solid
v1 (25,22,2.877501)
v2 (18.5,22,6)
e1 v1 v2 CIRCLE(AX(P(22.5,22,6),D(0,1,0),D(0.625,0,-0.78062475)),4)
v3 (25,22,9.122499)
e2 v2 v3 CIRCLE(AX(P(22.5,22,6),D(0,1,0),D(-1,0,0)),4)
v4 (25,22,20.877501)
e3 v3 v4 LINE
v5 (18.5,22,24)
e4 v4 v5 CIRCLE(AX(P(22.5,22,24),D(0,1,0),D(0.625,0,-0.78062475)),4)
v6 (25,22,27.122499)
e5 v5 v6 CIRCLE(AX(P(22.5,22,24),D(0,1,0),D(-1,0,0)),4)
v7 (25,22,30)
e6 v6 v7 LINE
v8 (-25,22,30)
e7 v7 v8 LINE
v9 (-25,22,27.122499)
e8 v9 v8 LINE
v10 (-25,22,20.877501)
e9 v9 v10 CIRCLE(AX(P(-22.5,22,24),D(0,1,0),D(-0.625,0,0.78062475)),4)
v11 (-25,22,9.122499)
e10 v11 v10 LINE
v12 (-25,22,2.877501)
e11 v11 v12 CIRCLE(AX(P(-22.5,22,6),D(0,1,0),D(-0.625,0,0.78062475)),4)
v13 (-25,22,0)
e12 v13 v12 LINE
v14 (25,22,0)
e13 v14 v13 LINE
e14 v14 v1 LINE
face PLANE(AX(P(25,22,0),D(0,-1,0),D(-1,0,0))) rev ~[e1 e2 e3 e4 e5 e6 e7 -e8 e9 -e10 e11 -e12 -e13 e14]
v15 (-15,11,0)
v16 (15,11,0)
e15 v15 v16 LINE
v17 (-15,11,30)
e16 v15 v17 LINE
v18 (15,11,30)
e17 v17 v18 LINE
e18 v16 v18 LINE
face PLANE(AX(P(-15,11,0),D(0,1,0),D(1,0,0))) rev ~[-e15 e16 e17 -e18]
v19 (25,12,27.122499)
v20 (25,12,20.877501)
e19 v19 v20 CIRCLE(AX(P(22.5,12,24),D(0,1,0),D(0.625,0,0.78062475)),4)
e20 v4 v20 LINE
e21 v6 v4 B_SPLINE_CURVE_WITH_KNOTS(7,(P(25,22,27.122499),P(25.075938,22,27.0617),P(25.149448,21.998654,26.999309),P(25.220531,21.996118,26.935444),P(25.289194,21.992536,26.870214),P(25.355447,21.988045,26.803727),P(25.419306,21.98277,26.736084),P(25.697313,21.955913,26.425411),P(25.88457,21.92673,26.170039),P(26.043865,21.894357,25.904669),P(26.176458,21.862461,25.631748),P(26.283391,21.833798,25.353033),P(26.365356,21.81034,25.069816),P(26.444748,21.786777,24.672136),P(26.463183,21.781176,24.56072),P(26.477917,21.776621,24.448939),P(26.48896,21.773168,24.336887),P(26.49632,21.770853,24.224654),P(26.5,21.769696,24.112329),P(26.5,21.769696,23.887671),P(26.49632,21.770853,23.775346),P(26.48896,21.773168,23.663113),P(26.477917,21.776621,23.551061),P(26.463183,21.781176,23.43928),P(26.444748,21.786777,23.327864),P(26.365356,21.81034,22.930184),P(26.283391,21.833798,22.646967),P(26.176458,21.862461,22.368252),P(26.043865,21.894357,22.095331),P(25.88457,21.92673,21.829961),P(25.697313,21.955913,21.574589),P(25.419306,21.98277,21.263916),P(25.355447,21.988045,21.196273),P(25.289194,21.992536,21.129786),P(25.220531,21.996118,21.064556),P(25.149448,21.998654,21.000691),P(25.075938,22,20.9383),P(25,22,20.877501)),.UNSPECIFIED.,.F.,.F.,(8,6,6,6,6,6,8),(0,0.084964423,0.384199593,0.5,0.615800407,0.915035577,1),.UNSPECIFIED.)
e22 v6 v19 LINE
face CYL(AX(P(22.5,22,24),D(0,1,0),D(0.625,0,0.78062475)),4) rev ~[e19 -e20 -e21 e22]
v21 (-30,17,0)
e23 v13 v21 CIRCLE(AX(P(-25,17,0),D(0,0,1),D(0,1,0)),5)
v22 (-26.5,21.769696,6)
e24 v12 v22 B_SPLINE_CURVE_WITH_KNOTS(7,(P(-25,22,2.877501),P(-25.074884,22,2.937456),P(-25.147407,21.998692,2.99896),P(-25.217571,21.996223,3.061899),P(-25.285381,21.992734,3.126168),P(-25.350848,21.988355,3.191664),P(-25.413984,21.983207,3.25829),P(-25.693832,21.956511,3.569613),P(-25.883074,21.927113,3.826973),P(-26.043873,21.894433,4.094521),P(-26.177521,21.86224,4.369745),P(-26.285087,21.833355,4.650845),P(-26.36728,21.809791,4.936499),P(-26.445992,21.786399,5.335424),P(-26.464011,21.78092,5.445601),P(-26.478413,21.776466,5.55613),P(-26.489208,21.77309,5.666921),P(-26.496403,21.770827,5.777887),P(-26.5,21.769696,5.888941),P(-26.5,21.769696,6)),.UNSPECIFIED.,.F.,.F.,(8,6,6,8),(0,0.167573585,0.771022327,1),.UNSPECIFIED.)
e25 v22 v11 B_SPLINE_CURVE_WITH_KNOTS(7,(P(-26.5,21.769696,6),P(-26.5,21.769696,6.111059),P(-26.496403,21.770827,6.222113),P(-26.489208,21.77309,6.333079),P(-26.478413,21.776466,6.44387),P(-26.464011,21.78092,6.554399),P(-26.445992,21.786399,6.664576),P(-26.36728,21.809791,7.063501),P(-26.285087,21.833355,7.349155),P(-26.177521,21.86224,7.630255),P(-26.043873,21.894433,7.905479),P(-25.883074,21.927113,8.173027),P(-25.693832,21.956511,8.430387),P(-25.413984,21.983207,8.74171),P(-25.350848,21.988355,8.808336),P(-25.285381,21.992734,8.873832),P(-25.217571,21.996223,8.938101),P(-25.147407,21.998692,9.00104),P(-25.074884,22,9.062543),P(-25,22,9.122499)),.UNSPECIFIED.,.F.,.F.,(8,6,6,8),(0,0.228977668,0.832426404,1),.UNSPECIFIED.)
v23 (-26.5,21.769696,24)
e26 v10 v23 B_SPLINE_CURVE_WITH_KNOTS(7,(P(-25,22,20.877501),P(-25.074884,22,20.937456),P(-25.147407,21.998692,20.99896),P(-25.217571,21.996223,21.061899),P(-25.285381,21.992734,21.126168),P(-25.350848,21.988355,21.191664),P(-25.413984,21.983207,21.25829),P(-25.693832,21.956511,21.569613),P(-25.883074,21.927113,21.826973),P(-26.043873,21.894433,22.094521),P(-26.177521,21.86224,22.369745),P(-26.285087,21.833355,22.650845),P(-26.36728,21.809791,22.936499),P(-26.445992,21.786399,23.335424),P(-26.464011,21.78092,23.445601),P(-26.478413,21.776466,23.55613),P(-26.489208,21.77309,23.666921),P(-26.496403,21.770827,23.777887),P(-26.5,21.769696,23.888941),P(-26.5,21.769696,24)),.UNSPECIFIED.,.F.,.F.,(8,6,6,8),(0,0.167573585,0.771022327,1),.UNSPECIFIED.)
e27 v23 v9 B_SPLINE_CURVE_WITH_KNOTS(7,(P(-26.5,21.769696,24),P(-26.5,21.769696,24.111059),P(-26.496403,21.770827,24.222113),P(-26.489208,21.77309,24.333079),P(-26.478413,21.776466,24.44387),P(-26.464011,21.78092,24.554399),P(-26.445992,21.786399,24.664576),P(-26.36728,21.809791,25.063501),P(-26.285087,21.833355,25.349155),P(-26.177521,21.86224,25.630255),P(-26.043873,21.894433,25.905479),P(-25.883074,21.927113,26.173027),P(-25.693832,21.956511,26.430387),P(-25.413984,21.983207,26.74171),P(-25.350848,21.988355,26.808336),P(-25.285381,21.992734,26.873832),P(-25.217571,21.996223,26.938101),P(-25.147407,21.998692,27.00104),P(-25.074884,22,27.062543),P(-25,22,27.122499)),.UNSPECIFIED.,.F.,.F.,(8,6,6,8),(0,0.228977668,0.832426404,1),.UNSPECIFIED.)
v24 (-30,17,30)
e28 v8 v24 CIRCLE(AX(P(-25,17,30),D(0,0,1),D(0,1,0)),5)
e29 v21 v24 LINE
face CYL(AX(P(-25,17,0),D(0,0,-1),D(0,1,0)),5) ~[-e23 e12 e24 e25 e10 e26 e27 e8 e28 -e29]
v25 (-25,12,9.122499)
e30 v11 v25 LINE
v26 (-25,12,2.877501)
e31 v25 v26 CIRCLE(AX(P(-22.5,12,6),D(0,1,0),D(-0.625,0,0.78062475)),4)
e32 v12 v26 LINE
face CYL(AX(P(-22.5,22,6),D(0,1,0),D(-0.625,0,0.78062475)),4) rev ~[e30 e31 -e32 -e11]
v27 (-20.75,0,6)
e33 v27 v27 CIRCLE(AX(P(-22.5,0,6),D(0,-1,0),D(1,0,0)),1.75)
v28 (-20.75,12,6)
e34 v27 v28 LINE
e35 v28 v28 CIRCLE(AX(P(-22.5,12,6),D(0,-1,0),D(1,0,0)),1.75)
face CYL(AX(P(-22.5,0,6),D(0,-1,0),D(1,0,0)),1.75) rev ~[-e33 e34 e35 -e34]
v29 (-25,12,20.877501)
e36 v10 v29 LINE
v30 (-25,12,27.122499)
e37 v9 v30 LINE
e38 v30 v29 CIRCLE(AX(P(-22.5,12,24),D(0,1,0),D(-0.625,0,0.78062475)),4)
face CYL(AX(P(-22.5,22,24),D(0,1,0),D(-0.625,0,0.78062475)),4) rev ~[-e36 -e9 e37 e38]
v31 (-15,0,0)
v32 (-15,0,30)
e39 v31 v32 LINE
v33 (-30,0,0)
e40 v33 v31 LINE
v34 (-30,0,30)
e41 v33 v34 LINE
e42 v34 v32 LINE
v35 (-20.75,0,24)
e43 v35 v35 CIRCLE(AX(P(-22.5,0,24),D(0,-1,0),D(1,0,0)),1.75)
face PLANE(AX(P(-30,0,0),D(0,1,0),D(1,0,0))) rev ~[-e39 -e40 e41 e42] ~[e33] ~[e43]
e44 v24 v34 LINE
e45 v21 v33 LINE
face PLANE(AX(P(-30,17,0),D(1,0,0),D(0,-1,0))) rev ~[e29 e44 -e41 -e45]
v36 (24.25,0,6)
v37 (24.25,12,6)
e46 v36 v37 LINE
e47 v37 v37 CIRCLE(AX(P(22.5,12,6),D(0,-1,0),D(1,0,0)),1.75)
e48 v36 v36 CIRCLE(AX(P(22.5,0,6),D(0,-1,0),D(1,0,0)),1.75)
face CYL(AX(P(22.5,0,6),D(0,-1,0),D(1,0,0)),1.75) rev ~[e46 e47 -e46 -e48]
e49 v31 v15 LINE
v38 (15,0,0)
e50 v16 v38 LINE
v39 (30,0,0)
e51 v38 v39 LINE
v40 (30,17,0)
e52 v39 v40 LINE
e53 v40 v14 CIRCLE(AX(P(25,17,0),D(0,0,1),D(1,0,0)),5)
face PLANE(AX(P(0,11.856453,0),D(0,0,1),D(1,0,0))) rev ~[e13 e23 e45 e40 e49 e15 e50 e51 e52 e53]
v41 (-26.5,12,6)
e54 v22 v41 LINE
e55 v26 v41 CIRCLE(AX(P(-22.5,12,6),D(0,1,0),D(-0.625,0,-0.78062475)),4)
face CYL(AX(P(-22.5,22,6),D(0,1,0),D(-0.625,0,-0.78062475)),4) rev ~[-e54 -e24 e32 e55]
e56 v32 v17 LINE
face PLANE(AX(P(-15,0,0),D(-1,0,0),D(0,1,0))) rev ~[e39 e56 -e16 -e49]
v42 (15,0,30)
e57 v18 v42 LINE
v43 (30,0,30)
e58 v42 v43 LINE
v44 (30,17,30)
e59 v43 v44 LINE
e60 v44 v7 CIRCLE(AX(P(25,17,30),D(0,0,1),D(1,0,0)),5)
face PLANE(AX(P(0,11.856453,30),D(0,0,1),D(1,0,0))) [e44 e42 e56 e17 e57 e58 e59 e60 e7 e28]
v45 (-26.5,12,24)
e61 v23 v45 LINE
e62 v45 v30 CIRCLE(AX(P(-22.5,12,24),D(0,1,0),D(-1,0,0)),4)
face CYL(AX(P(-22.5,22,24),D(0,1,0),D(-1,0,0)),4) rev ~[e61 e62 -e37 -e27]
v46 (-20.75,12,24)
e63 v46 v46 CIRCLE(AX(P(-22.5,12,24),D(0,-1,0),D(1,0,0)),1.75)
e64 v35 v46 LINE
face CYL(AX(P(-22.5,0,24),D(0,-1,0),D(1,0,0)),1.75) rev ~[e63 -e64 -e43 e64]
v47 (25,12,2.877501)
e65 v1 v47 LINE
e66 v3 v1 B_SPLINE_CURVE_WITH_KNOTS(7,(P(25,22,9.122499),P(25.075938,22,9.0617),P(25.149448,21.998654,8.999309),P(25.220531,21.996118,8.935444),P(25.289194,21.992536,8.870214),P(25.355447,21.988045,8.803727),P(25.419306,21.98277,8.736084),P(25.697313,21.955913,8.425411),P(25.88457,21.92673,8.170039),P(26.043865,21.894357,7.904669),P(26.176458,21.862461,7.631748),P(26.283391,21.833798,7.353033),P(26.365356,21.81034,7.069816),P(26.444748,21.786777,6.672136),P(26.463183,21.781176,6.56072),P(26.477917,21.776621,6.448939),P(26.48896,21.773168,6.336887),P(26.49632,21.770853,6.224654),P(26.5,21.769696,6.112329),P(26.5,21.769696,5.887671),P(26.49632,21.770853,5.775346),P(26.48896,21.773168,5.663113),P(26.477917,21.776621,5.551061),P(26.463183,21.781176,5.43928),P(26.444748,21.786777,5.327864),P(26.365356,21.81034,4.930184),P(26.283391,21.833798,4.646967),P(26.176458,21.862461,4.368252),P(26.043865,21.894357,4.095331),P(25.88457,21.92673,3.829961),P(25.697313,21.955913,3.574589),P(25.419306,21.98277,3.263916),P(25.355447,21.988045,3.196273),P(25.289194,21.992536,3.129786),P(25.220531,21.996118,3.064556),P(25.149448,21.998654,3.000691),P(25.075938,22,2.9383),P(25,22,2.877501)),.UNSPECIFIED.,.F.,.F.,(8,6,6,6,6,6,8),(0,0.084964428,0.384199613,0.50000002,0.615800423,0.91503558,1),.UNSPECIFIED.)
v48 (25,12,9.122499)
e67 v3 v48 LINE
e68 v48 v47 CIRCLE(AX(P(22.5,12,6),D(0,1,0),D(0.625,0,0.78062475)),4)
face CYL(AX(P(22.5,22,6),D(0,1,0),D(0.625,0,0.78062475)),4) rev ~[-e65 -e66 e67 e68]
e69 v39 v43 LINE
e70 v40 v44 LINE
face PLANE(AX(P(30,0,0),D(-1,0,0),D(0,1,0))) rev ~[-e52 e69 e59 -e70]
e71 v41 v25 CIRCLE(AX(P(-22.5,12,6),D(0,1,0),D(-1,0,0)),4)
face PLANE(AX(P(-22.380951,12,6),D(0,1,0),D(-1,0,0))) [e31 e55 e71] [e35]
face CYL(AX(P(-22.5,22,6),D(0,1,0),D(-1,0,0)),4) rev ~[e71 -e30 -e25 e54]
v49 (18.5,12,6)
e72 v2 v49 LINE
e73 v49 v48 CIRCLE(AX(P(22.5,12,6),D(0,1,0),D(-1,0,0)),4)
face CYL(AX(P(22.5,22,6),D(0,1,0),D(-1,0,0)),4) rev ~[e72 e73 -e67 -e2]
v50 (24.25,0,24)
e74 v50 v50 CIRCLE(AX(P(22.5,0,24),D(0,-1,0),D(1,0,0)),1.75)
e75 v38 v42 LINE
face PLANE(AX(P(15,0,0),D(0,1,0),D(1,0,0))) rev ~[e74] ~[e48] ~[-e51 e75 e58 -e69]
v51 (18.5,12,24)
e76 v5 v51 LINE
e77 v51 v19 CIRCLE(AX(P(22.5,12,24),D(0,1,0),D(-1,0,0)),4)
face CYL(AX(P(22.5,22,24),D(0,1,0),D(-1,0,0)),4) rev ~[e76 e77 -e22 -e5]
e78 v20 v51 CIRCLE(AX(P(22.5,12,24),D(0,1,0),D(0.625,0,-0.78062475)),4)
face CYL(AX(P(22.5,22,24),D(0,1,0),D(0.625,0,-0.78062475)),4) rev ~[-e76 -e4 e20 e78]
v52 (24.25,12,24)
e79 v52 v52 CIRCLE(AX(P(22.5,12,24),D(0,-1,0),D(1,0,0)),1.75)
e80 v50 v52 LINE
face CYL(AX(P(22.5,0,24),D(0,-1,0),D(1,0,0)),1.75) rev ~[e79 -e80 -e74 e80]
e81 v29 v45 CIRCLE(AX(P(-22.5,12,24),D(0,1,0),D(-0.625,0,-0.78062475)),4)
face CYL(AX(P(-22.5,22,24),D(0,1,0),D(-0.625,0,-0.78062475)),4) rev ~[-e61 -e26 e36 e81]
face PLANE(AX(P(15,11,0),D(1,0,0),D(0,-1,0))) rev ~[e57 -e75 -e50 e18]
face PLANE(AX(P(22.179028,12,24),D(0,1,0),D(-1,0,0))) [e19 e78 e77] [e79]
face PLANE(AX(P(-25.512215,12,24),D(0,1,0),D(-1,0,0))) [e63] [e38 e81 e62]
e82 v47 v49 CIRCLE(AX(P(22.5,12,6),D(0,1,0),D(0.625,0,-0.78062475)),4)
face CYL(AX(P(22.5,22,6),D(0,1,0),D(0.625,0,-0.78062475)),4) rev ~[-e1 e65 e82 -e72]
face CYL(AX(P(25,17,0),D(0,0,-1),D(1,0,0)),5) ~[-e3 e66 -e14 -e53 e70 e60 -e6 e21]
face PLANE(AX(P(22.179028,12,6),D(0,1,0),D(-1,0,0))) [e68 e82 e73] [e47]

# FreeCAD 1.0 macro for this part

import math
import FreeCAD as App
import Part
import Sketcher

V = App.Vector

doc = App.newDocument("Part")
params = doc.addObject("Spreadsheet::Sheet", "Params")
for row, (alias, value) in enumerate([
    ("sketch1_radius", "5 mm"),
    ("sketch1_width", "50 mm"),
    ("sketch1_width2", "15 mm"),
    ("sketch1_height", "17 mm"),
    ("sketch1_height2", "11 mm"),
    ("pad1_length", "30 mm"),
    ("sketch2_diameter", "3.5 mm"),
    ("sketch3_radius", "4 mm"),
    ("sketch3_diameter", "3.5 mm"),
    ("pocket2_length", "10 mm"),
], start=1):
    params.set(f"A{row}", alias)
    params.set(f"B{row}", "=" + value)
    params.setAlias(f"B{row}", alias)

body = doc.addObject("PartDesign::Body", "Body")

# Sketch on XY plane
sketch1 = doc.addObject("Sketcher::SketchObject", "Sketch")
body.addObject(sketch1)
sketch1.AttachmentSupport = (doc.XY_Plane, [""])
sketch1.MapMode = "FlatFace"
sketch1.addGeometry([
    Part.LineSegment(V(25, 22, 0), V(-25, 22, 0)),  # 0
    Part.ArcOfCircle(Part.Circle(V(-25, 17, 0), V(0, 0, 1), 5), math.radians(90), math.radians(180)),  # 1
    Part.LineSegment(V(-30, 17, 0), V(-30, 0, 0)),  # 2
    Part.LineSegment(V(-30, 0, 0), V(-15, 0, 0)),  # 3
    Part.LineSegment(V(-15, 0, 0), V(-15, 11, 0)),  # 4
    Part.LineSegment(V(-15, 11, 0), V(15, 11, 0)),  # 5
    Part.LineSegment(V(15, 11, 0), V(15, 0, 0)),  # 6
    Part.LineSegment(V(15, 0, 0), V(30, 0, 0)),  # 7
    Part.LineSegment(V(30, 0, 0), V(30, 17, 0)),  # 8
    Part.ArcOfCircle(Part.Circle(V(25, 17, 0), V(0, 0, 1), 5), math.radians(0), math.radians(90)),  # 9
], False)
sketch1.addConstraint([
    Sketcher.Constraint("Tangent", 0, 2, 1, 1),
    Sketcher.Constraint("Tangent", 1, 2, 2, 1),
    Sketcher.Constraint("Coincident", 2, 2, 3, 1),
    Sketcher.Constraint("Coincident", 3, 2, 4, 1),
    Sketcher.Constraint("Coincident", 4, 2, 5, 1),
    Sketcher.Constraint("Coincident", 5, 2, 6, 1),
    Sketcher.Constraint("Coincident", 6, 2, 7, 1),
    Sketcher.Constraint("Coincident", 7, 2, 8, 1),
    Sketcher.Constraint("Tangent", 8, 2, 9, 1),
    Sketcher.Constraint("Tangent", 9, 2, 0, 1),
    Sketcher.Constraint("Horizontal", 0),
    Sketcher.Constraint("Vertical", 2),
    Sketcher.Constraint("Horizontal", 3),
    Sketcher.Constraint("Vertical", 4),
    Sketcher.Constraint("Horizontal", 5),
    Sketcher.Constraint("Vertical", 6),
    Sketcher.Constraint("Horizontal", 7),
    Sketcher.Constraint("Vertical", 8),
    Sketcher.Constraint("Equal", 1, 9),
    Sketcher.Constraint("Symmetric", 3, 2, 6, 2, -1, 1),
    Sketcher.Constraint("Symmetric", 2, 2, 7, 2, -2),
    Sketcher.Constraint("Radius", 1, 5.0),
    Sketcher.Constraint("DistanceX", 0, 2, 0, 1, 50.0),
    Sketcher.Constraint("DistanceX", 3, 1, 3, 2, 15.0),
    Sketcher.Constraint("DistanceY", 2, 2, 2, 1, 17.0),
    Sketcher.Constraint("DistanceY", 4, 1, 4, 2, 11.0),
])
sketch1.setExpression("Constraints[21]", "Params.sketch1_radius")
sketch1.setExpression("Constraints[22]", "Params.sketch1_width")
sketch1.setExpression("Constraints[23]", "Params.sketch1_width2")
sketch1.setExpression("Constraints[24]", "Params.sketch1_height")
sketch1.setExpression("Constraints[25]", "Params.sketch1_height2")
pad1 = doc.addObject("PartDesign::Pad", "Pad")
body.addObject(pad1)
pad1.Profile = sketch1
pad1.setExpression("Length", "Params.pad1_length")

# Sketch on XZ plane
sketch2 = doc.addObject("Sketcher::SketchObject", "Sketch001")
body.addObject(sketch2)
sketch2.AttachmentSupport = (doc.XZ_Plane, [""])
sketch2.MapMode = "FlatFace"
sketch2.addGeometry([
    Part.Circle(V(-22.5, 24, 0), V(0, 0, 1), 1.75),
    Part.Circle(V(-22.5, 6, 0), V(0, 0, 1), 1.75),
    Part.Circle(V(22.5, 6, 0), V(0, 0, 1), 1.75),
    Part.Circle(V(22.5, 24, 0), V(0, 0, 1), 1.75),
], False)
sketch2.addConstraint([
    Sketcher.Constraint("Equal", 0, 1),
    Sketcher.Constraint("Equal", 1, 2),
    Sketcher.Constraint("Equal", 2, 3),
    Sketcher.Constraint("Symmetric", 1, 3, 2, 3, -2),
    Sketcher.Constraint("Symmetric", 0, 3, 3, 3, -2),
    Sketcher.Constraint("Vertical", 0, 3, 1, 3),
    Sketcher.Constraint("Diameter", 0, 3.5),
    Sketcher.Constraint("DistanceY", -1, 1, 0, 3, 24.0),
    Sketcher.Constraint("DistanceY", -1, 1, 1, 3, 6.0),
    Sketcher.Constraint("DistanceX", 1, 3, 2, 3, 45.0),
])
sketch2.setExpression("Constraints[6]", "Params.sketch2_diameter")
pocket1 = doc.addObject("PartDesign::Pocket", "Pocket")
body.addObject(pocket1)
pocket1.Profile = sketch2
pocket1.Type = "ThroughAll"

# Sketch on XZ plane
sketch3 = doc.addObject("Sketcher::SketchObject", "Sketch002")
body.addObject(sketch3)
sketch3.AttachmentSupport = (doc.XZ_Plane, [""])
sketch3.MapMode = "FlatFace"
sketch3.AttachmentOffset = App.Placement(V(0, 0, -22), App.Rotation())
sketch3.addGeometry([
    Part.ArcOfCircle(Part.Circle(V(-22.5, 24, 0), V(0, 0, 1), 4), math.radians(180), math.radians(231.317813)),  # 0
    Part.ArcOfCircle(Part.Circle(V(-22.5, 24, 0), V(0, 0, 1), 4), math.radians(128.682187), math.radians(180)),  # 1
    Part.ArcOfCircle(Part.Circle(V(-22.5, 24, 0), V(0, 0, 1), 4), math.radians(-128.682187), math.radians(128.682187)),  # 2
    Part.Circle(V(-22.5, 24, 0), V(0, 0, 1), 1.75),  # 3
    Part.ArcOfCircle(Part.Circle(V(-22.5, 6, 0), V(0, 0, 1), 4), math.radians(-128.682187), math.radians(128.682187)),  # 4
    Part.ArcOfCircle(Part.Circle(V(-22.5, 6, 0), V(0, 0, 1), 4), math.radians(180), math.radians(231.317813)),  # 5
    Part.ArcOfCircle(Part.Circle(V(-22.5, 6, 0), V(0, 0, 1), 4), math.radians(128.682187), math.radians(180)),  # 6
    Part.Circle(V(-22.5, 6, 0), V(0, 0, 1), 1.75),  # 7
    Part.ArcOfCircle(Part.Circle(V(22.5, 6, 0), V(0, 0, 1), 4), math.radians(51.317813), math.radians(180)),  # 8
    Part.ArcOfCircle(Part.Circle(V(22.5, 6, 0), V(0, 0, 1), 4), math.radians(-51.317813), math.radians(51.317813)),  # 9
    Part.ArcOfCircle(Part.Circle(V(22.5, 6, 0), V(0, 0, 1), 4), math.radians(180), math.radians(308.682187)),  # 10
    Part.Circle(V(22.5, 6, 0), V(0, 0, 1), 1.75),  # 11
    Part.ArcOfCircle(Part.Circle(V(22.5, 24, 0), V(0, 0, 1), 4), math.radians(51.317813), math.radians(180)),  # 12
    Part.ArcOfCircle(Part.Circle(V(22.5, 24, 0), V(0, 0, 1), 4), math.radians(-51.317813), math.radians(51.317813)),  # 13
    Part.ArcOfCircle(Part.Circle(V(22.5, 24, 0), V(0, 0, 1), 4), math.radians(180), math.radians(308.682187)),  # 14
    Part.Circle(V(22.5, 24, 0), V(0, 0, 1), 1.75),  # 15
], False)
sketch3.addConstraint([
    Sketcher.Constraint("Tangent", 0, 1, 1, 2),
    Sketcher.Constraint("Tangent", 1, 1, 2, 2),
    Sketcher.Constraint("Tangent", 2, 1, 0, 2),
    Sketcher.Constraint("Tangent", 4, 1, 5, 2),
    Sketcher.Constraint("Tangent", 5, 1, 6, 2),
    Sketcher.Constraint("Tangent", 6, 1, 4, 2),
    Sketcher.Constraint("Tangent", 8, 1, 9, 2),
    Sketcher.Constraint("Tangent", 9, 1, 10, 2),
    Sketcher.Constraint("Tangent", 10, 1, 8, 2),
    Sketcher.Constraint("Tangent", 12, 1, 13, 2),
    Sketcher.Constraint("Tangent", 13, 1, 14, 2),
    Sketcher.Constraint("Tangent", 14, 1, 12, 2),
    Sketcher.Constraint("Coincident", 3, 3, 0, 3),
    Sketcher.Constraint("Coincident", 7, 3, 4, 3),
    Sketcher.Constraint("Coincident", 11, 3, 8, 3),
    Sketcher.Constraint("Coincident", 15, 3, 12, 3),
    Sketcher.Constraint("Equal", 2, 4),
    Sketcher.Constraint("Equal", 3, 7),
    Sketcher.Constraint("Equal", 6, 8),
    Sketcher.Constraint("Equal", 7, 11),
    Sketcher.Constraint("Equal", 10, 12),
    Sketcher.Constraint("Equal", 11, 15),
    Sketcher.Constraint("Symmetric", 4, 3, 8, 3, -2),
    Sketcher.Constraint("Symmetric", 0, 3, 12, 3, -2),
    Sketcher.Constraint("Horizontal", 15, 3, 0, 1),
    Sketcher.Constraint("Horizontal", 11, 3, 5, 1),
    Sketcher.Constraint("Horizontal", 6, 1, 8, 1),
    Sketcher.Constraint("Horizontal", 4, 1, 9, 1),
    Sketcher.Constraint("Horizontal", 5, 1, 10, 1),
    Sketcher.Constraint("Horizontal", 1, 1, 12, 1),
    Sketcher.Constraint("Horizontal", 2, 1, 13, 1),
    Sketcher.Constraint("Horizontal", 0, 1, 14, 1),
    Sketcher.Constraint("Vertical", 3, 3, 4, 3),
    Sketcher.Constraint("Vertical", 1, 1, 2, 1),
    Sketcher.Constraint("Vertical", 2, 1, 4, 1),
    Sketcher.Constraint("Vertical", 4, 1, 6, 1),
    Sketcher.Constraint("Radius", 0, 4.0),
    Sketcher.Constraint("Diameter", 3, 3.5),
    Sketcher.Constraint("DistanceY", -1, 1, 0, 3, 24.0),
    Sketcher.Constraint("DistanceY", -1, 1, 4, 3, 6.0),
    Sketcher.Constraint("DistanceX", 1, 1, -1, 1, 25.0),
    Sketcher.Constraint("DistanceX", 4, 3, 8, 3, 45.0),
])
sketch3.setExpression("Constraints[36]", "Params.sketch3_radius")
sketch3.setExpression("Constraints[37]", "Params.sketch3_diameter")
pocket2 = doc.addObject("PartDesign::Pocket", "Pocket001")
body.addObject(pocket2)
pocket2.Profile = sketch3
pocket2.setExpression("Length", "Params.pocket2_length")
pocket2.Reversed = True

doc.recompute()
